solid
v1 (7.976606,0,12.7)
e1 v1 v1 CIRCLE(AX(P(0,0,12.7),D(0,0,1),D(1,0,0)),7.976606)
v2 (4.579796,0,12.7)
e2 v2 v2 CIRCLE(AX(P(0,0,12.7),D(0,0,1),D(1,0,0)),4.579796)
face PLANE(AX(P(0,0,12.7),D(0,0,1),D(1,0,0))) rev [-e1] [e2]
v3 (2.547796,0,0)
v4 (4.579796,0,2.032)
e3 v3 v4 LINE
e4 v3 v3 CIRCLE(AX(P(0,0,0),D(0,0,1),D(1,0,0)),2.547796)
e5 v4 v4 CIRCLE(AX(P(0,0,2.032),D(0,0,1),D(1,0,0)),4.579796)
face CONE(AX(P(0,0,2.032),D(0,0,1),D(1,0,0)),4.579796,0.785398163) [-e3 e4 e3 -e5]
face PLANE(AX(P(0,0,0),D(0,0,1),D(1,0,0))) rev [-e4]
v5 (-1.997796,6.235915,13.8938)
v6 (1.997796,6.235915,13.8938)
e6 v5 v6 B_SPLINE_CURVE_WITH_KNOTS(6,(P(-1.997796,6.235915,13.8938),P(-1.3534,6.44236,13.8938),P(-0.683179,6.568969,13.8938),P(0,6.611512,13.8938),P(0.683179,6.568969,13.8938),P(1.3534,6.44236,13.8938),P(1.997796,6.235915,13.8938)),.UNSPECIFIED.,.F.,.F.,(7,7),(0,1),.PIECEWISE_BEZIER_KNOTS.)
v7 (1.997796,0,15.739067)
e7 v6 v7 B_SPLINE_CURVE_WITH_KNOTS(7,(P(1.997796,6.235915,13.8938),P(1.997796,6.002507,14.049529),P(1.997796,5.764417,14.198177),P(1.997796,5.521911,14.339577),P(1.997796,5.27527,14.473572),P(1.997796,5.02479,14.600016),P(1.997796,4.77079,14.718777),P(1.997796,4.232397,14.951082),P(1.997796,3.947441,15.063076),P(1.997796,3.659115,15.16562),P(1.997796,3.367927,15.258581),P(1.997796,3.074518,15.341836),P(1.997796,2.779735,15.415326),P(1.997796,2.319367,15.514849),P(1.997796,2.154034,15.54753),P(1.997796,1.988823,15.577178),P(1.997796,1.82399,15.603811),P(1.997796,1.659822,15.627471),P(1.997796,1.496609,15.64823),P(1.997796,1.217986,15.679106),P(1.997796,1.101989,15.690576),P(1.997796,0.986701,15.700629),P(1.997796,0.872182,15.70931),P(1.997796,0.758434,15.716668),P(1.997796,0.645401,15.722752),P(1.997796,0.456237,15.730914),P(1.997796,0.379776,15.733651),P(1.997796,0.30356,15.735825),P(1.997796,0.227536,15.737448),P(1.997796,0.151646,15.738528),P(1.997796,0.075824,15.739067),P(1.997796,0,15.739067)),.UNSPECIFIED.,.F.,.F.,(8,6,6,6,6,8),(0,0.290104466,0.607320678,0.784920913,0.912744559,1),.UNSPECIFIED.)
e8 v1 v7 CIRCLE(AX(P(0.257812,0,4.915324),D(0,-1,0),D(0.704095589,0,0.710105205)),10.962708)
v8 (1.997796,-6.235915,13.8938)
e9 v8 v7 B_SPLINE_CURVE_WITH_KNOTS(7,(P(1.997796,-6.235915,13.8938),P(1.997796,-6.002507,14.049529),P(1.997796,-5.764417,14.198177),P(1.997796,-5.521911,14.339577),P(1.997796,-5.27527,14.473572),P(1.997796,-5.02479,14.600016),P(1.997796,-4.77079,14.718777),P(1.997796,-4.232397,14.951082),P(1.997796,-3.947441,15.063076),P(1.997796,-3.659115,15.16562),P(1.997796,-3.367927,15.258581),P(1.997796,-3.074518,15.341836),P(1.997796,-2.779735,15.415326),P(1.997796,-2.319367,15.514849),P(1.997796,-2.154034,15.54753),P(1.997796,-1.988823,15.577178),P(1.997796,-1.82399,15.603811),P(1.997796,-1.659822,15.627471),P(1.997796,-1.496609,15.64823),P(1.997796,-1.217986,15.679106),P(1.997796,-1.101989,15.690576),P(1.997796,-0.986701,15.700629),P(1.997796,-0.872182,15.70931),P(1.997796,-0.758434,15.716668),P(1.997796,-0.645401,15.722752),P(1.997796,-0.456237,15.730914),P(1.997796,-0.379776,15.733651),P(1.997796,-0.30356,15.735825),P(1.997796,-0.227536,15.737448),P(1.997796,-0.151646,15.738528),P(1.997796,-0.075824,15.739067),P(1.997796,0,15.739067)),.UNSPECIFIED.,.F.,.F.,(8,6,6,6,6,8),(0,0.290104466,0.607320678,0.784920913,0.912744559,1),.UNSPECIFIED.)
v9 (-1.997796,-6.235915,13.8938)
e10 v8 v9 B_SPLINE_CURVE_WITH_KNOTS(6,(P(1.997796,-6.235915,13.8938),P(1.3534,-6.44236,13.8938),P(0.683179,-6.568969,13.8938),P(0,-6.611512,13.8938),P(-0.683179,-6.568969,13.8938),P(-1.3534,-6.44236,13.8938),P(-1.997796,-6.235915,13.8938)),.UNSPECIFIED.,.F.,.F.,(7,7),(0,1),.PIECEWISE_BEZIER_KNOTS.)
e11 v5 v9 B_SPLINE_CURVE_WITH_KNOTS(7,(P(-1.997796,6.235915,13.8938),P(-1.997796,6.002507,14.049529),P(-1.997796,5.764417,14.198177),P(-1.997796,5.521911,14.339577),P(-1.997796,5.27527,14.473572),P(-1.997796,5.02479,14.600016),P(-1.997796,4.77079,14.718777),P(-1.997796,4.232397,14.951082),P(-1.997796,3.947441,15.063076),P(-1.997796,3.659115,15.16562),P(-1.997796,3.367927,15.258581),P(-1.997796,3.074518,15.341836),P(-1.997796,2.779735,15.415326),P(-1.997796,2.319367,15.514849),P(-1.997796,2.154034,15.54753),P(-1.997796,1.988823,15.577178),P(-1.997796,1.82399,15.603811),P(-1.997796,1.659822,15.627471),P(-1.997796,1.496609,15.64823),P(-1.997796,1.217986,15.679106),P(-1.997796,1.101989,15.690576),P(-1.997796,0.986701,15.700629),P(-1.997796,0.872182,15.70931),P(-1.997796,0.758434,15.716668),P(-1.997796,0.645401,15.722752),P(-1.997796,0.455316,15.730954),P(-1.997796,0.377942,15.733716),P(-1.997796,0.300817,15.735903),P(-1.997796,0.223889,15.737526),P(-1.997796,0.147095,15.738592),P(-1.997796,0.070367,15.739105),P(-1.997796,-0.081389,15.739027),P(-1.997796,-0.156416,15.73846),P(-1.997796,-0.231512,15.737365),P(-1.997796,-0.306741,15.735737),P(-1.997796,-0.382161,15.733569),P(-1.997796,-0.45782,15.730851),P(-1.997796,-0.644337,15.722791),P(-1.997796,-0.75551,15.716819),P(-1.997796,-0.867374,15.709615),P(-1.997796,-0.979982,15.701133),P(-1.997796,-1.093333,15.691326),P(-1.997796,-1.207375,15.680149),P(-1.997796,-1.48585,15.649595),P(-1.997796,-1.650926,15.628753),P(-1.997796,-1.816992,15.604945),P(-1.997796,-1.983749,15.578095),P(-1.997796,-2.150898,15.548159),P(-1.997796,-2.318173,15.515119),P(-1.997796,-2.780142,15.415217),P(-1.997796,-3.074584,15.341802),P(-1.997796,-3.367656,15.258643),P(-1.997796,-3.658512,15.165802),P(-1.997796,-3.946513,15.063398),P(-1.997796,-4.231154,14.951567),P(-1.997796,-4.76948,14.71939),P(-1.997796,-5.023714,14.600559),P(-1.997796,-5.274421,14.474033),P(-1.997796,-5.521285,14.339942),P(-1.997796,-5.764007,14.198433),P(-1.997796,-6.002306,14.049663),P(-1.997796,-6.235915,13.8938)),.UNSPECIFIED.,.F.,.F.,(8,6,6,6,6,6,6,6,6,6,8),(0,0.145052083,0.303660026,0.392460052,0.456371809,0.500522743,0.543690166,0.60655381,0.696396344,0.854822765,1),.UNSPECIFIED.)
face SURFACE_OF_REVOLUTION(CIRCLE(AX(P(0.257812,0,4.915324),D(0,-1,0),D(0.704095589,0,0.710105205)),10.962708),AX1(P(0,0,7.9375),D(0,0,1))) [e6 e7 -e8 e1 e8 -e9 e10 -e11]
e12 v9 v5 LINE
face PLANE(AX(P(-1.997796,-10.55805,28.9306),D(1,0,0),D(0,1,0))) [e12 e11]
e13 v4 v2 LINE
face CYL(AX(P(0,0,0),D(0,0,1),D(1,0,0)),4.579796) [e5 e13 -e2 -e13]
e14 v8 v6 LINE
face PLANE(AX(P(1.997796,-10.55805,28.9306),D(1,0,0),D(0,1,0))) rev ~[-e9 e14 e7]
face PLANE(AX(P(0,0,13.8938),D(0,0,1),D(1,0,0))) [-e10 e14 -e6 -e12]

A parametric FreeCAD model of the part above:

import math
import FreeCAD as App
import Part
import Sketcher
Q = App.Units.Quantity


def edges_at(feature, points):
    """Names of the edges that pass closest to the given points."""
    edges = feature.Shape.Edges
    near = lambda p: min(range(len(edges)), key=lambda i: edges[i].distToShape(Part.Vertex(*p))[0])
    return sorted({f"Edge{near(p) + 1}" for p in points})

doc = App.newDocument("Part")
body = doc.addObject("PartDesign::Body", "Body")

sketch1 = body.newObject("Sketcher::SketchObject", "Sketch")
sketch1.AttachmentSupport = (doc.getObject("XZ_Plane"), [""])
sketch1.MapMode = "FlatFace"
sketch1.addGeometry(Part.LineSegment(App.Vector(0, 15.9, 0), App.Vector(0, 0, 0)), False)
sketch1.addGeometry(Part.LineSegment(App.Vector(0, 0, 0), App.Vector(4.6, 0, 0)), False)
sketch1.addGeometry(Part.LineSegment(App.Vector(4.6, 0, 0), App.Vector(4.6, 12.7, 0)), False)
sketch1.addGeometry(Part.LineSegment(App.Vector(4.6, 12.7, 0), App.Vector(8, 12.7, 0)), False)
sketch1.addGeometry(Part.ArcOfCircle(Part.Circle(App.Vector(0.3, 4.9, 0), App.Vector(0, 0, 1), 11), math.radians(45), math.radians(91)), False)
sketch1.addConstraint(Sketcher.Constraint("Coincident", 0, 2, 1, 1))
sketch1.addConstraint(Sketcher.Constraint("Coincident", 1, 2, 2, 1))
sketch1.addConstraint(Sketcher.Constraint("Coincident", 2, 2, 3, 1))
sketch1.addConstraint(Sketcher.Constraint("Coincident", 3, 2, 4, 1))
sketch1.addConstraint(Sketcher.Constraint("Coincident", 4, 2, 0, 1))
sketch1.addConstraint(Sketcher.Constraint("Vertical", 0))
sketch1.addConstraint(Sketcher.Constraint("Horizontal", 1))
sketch1.addConstraint(Sketcher.Constraint("Vertical", 2))
sketch1.addConstraint(Sketcher.Constraint("Horizontal", 3))
sketch1.addConstraint(Sketcher.Constraint("Coincident", 0, 2, -1, 1))
sketch1.addConstraint(Sketcher.Constraint("DistanceY", 2, 1, 2, 2, Q("0.5 in")))
sketch1.addConstraint(Sketcher.Constraint("DistanceY", 0, 2, 0, 1, Q("0.625 in")))
sketch1.addConstraint(Sketcher.Constraint("Radius", 4, Q("10.962708 mm")))
sketch1.addConstraint(Sketcher.Constraint("DistanceX", 3, 1, 3, 2, Q("3.39681 mm")))
sketch1.addConstraint(Sketcher.Constraint("DistanceX", 1, 1, 1, 2, Q("4.579796 mm")))
revolution = body.newObject("PartDesign::Revolution", "Revolution")
revolution.Profile = sketch1
revolution.ReferenceAxis = (sketch1, ["V_Axis"])
revolution.Angle = 360
doc.recompute()

chamfer = body.newObject("PartDesign::Chamfer", "Chamfer")
chamfer.Base = (revolution, edges_at(revolution, [(-4.58, 0, 0)]))
chamfer.Size = Q("0.08 in")

sketch2 = body.newObject("Sketcher::SketchObject", "Sketch001")
sketch2.AttachmentSupport = (doc.getObject("XY_Plane"), [""])
sketch2.MapMode = "FlatFace"
sketch2.AttachmentOffset = App.Placement(App.Vector(0, 0, 1.139 * 25.4), App.Rotation())
sketch2.addGeometry(Part.LineSegment(App.Vector(-2, 10.6, 0), App.Vector(-2, -10.6, 0)), False)
sketch2.addGeometry(Part.LineSegment(App.Vector(-2, -10.6, 0), App.Vector(2, -10.6, 0)), False)
sketch2.addGeometry(Part.LineSegment(App.Vector(2, -10.6, 0), App.Vector(2, 10.6, 0)), False)
sketch2.addGeometry(Part.LineSegment(App.Vector(2, 10.6, 0), App.Vector(-2, 10.6, 0)), False)
sketch2.addConstraint(Sketcher.Constraint("Coincident", 0, 2, 1, 1))
sketch2.addConstraint(Sketcher.Constraint("Coincident", 1, 2, 2, 1))
sketch2.addConstraint(Sketcher.Constraint("Coincident", 2, 2, 3, 1))
sketch2.addConstraint(Sketcher.Constraint("Coincident", 3, 2, 0, 1))
sketch2.addConstraint(Sketcher.Constraint("Vertical", 0))
sketch2.addConstraint(Sketcher.Constraint("Horizontal", 1))
sketch2.addConstraint(Sketcher.Constraint("Vertical", 2))
sketch2.addConstraint(Sketcher.Constraint("Horizontal", 3))
sketch2.addConstraint(Sketcher.Constraint("Symmetric", 0, 2, 2, 2, -1, 1))
sketch2.addConstraint(Sketcher.Constraint("DistanceY", 0, 2, 0, 1, Q("21.1161 mm")))
sketch2.addConstraint(Sketcher.Constraint("DistanceX", 1, 1, 1, 2, Q("3.995592 mm")))
pocket1 = body.newObject("PartDesign::Pocket", "Pocket")
pocket1.Profile = sketch2
pocket1.Length = Q("0.592 in")

doc.recompute()
